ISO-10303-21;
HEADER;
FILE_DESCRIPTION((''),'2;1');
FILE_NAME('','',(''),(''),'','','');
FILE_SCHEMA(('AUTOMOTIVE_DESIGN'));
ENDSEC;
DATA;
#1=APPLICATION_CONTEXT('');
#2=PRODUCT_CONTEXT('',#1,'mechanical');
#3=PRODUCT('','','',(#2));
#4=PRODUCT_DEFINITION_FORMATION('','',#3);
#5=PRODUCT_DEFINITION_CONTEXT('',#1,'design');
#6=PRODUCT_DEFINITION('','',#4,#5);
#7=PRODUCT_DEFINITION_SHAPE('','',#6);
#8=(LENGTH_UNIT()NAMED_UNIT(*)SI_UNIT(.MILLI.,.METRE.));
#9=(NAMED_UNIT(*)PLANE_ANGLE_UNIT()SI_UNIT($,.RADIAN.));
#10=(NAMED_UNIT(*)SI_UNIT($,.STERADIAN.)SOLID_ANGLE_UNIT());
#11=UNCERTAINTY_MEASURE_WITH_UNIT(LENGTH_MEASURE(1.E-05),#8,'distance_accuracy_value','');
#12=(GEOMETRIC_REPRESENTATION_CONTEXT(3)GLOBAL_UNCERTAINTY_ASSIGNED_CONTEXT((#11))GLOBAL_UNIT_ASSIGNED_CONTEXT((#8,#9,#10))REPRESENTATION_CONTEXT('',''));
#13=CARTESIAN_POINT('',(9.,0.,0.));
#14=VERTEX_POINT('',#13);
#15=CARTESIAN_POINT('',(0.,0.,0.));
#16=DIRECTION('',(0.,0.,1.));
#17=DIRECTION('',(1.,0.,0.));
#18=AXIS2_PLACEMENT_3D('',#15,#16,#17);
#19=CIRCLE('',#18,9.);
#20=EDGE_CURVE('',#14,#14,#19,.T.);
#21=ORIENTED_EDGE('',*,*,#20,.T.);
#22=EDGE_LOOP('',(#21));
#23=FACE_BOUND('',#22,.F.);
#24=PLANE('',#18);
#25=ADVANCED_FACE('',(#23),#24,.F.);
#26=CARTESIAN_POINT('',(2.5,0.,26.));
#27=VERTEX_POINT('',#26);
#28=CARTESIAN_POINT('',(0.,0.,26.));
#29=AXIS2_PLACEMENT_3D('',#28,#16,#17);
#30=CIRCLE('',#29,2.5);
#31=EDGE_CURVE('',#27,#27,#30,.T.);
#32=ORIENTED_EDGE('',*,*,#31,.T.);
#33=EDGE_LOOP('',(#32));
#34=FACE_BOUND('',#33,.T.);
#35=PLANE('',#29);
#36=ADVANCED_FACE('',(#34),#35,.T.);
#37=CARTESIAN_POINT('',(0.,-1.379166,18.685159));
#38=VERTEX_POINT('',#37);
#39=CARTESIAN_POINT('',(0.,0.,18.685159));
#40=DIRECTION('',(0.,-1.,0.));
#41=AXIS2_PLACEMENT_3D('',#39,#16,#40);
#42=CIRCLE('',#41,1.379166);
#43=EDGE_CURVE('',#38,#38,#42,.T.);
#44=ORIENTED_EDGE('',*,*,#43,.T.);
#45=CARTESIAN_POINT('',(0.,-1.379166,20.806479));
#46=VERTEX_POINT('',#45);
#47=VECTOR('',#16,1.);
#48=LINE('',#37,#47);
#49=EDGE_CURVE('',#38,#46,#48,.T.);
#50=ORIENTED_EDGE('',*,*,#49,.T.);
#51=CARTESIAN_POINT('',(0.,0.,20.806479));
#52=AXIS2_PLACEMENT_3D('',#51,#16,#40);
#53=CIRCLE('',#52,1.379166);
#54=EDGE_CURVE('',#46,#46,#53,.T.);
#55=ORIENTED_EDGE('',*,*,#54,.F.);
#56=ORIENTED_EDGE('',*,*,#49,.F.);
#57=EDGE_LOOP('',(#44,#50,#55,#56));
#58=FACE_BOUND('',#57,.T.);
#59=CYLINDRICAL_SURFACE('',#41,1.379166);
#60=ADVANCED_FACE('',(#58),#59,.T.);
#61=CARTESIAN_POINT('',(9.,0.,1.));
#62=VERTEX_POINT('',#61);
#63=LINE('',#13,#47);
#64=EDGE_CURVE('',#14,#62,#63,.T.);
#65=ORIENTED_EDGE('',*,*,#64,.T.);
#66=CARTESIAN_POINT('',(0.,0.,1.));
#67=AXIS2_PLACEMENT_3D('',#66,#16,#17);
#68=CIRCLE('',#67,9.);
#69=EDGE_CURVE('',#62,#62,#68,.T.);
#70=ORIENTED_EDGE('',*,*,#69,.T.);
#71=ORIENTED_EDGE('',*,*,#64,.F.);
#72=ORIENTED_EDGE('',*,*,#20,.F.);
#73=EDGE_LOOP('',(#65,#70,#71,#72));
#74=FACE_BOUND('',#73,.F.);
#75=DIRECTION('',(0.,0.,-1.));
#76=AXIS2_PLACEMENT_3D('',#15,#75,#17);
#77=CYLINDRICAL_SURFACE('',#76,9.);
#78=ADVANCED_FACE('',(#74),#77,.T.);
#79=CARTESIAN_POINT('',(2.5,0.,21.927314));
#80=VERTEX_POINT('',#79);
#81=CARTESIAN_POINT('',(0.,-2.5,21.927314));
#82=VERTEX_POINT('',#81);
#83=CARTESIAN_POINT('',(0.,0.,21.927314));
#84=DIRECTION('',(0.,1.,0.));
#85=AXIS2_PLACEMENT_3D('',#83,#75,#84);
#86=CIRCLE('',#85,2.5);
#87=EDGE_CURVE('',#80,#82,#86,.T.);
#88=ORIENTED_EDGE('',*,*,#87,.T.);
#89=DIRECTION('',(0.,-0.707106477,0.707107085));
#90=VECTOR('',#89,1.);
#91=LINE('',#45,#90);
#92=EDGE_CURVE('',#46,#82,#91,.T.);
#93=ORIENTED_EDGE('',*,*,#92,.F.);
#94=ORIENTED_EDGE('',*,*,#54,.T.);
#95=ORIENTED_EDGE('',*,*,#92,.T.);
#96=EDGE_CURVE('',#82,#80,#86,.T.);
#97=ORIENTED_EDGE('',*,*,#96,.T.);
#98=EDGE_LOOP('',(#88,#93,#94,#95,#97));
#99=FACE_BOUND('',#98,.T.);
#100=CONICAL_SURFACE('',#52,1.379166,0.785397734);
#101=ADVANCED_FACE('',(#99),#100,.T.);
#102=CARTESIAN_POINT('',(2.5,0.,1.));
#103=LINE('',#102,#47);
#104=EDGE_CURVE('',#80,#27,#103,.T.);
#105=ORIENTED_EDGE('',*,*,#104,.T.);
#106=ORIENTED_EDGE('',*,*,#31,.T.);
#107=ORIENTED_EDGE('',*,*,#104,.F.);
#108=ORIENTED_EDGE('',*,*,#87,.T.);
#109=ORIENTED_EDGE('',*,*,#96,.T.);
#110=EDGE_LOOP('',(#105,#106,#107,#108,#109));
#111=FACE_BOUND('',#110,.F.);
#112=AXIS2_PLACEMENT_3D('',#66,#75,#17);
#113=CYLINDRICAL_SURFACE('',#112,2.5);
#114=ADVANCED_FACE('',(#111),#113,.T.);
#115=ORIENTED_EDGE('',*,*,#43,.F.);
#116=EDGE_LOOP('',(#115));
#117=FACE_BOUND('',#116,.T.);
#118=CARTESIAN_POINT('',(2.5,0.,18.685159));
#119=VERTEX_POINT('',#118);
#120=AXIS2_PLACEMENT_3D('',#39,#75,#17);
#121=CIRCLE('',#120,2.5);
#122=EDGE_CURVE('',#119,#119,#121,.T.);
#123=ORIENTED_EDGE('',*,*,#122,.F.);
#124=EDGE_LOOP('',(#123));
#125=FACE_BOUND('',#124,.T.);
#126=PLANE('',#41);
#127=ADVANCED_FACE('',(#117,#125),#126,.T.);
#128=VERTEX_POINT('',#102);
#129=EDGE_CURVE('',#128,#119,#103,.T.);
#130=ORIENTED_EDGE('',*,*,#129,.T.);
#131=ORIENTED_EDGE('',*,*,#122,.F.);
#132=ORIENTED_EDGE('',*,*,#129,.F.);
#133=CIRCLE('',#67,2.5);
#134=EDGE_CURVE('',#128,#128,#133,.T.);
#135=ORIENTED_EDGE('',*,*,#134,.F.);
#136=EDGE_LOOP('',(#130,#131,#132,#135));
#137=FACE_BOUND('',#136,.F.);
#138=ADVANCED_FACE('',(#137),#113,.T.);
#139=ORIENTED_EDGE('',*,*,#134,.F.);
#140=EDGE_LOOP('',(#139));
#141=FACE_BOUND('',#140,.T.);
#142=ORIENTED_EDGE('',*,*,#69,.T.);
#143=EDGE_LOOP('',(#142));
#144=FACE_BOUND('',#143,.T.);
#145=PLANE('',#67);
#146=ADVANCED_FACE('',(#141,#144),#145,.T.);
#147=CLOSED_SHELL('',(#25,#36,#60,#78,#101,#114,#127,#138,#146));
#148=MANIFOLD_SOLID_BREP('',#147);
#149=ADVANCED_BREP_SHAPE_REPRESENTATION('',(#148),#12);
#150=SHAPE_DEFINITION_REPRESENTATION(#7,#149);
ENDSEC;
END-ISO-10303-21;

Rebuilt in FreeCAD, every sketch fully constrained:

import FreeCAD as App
import Part
import Sketcher

V = App.Vector
Q = App.Units.Quantity

doc = App.newDocument("Part")
body = doc.addObject("PartDesign::Body", "Body")

sketch1 = body.newObject("Sketcher::SketchObject", "Sketch")
sketch1.AttachmentSupport = (doc.getObject("XY_Plane"), [""])
sketch1.MapMode = "FlatFace"
sketch1.addGeometry(Part.Circle(V(0, 0, 0), V(0, 0, 1), 9), False)
sketch1.addConstraint([
    Sketcher.Constraint("Coincident", 0, 3, -1, 1),
    Sketcher.Constraint("Diameter", 0, Q("18 mm")),
])
pad1 = body.newObject("PartDesign::Pad", "Pad")
pad1.Profile = sketch1
pad1.Length = 1

sketch2 = body.newObject("Sketcher::SketchObject", "Sketch001")
sketch2.AttachmentSupport = (doc.getObject("XY_Plane"), [""])
sketch2.MapMode = "FlatFace"
sketch2.AttachmentOffset = App.Placement(V(0, 0, 1), App.Rotation())
sketch2.addGeometry(Part.Circle(V(0, 0, 0), V(0, 0, 1), 2.5), False)
sketch2.addConstraint([
    Sketcher.Constraint("Coincident", 0, 3, -1, 1),
    Sketcher.Constraint("Diameter", 0, Q("5 mm")),
])
pad2 = body.newObject("PartDesign::Pad", "Pad001")
pad2.Profile = sketch2
pad2.Length = 25

sketch3 = body.newObject("Sketcher::SketchObject", "Sketch002")
sketch3.AttachmentSupport = (doc.getObject("YZ_Plane"), [""])
sketch3.MapMode = "FlatFace"
sketch3.addGeometry([
    Part.LineSegment(V(-2.54262, 21.969934, 0), V(-2.54262, 18.685159, 0)),
    Part.LineSegment(V(-2.54262, 18.685159, 0), V(-1.379166, 18.685159, 0)),
    Part.LineSegment(V(-1.379166, 18.685159, 0), V(-1.379166, 20.806479, 0)),
    Part.LineSegment(V(-1.379166, 20.806479, 0), V(-2.54262, 21.969934, 0)),
], False)
sketch3.addConstraint([
    Sketcher.Constraint("Coincident", 0, 2, 1, 1),
    Sketcher.Constraint("Coincident", 1, 2, 2, 1),
    Sketcher.Constraint("Coincident", 2, 2, 3, 1),
    Sketcher.Constraint("Coincident", 3, 2, 0, 1),
    Sketcher.Constraint("Vertical", 0),
    Sketcher.Constraint("Horizontal", 1),
    Sketcher.Constraint("Vertical", 2),
    Sketcher.Constraint("DistanceY", 2, 1, 2, 2, Q("2.12132 mm")),
    Sketcher.Constraint("DistanceX", 1, 1, 1, 2, Q("1.163454 mm")),
    Sketcher.Constraint("DistanceY", 0, 2, 0, 1, Q("3.284775 mm")),
    Sketcher.Constraint("DistanceX", 0, 2, -1, 1, Q("2.54262 mm")),
    Sketcher.Constraint("DistanceY", -1, 1, 0, 2, Q("18.685159 mm")),
])
groove = body.newObject("PartDesign::Groove", "Groove")
groove.Profile = sketch3
groove.ReferenceAxis = (sketch3, ["V_Axis"])
groove.Angle = 360

doc.recompute()
